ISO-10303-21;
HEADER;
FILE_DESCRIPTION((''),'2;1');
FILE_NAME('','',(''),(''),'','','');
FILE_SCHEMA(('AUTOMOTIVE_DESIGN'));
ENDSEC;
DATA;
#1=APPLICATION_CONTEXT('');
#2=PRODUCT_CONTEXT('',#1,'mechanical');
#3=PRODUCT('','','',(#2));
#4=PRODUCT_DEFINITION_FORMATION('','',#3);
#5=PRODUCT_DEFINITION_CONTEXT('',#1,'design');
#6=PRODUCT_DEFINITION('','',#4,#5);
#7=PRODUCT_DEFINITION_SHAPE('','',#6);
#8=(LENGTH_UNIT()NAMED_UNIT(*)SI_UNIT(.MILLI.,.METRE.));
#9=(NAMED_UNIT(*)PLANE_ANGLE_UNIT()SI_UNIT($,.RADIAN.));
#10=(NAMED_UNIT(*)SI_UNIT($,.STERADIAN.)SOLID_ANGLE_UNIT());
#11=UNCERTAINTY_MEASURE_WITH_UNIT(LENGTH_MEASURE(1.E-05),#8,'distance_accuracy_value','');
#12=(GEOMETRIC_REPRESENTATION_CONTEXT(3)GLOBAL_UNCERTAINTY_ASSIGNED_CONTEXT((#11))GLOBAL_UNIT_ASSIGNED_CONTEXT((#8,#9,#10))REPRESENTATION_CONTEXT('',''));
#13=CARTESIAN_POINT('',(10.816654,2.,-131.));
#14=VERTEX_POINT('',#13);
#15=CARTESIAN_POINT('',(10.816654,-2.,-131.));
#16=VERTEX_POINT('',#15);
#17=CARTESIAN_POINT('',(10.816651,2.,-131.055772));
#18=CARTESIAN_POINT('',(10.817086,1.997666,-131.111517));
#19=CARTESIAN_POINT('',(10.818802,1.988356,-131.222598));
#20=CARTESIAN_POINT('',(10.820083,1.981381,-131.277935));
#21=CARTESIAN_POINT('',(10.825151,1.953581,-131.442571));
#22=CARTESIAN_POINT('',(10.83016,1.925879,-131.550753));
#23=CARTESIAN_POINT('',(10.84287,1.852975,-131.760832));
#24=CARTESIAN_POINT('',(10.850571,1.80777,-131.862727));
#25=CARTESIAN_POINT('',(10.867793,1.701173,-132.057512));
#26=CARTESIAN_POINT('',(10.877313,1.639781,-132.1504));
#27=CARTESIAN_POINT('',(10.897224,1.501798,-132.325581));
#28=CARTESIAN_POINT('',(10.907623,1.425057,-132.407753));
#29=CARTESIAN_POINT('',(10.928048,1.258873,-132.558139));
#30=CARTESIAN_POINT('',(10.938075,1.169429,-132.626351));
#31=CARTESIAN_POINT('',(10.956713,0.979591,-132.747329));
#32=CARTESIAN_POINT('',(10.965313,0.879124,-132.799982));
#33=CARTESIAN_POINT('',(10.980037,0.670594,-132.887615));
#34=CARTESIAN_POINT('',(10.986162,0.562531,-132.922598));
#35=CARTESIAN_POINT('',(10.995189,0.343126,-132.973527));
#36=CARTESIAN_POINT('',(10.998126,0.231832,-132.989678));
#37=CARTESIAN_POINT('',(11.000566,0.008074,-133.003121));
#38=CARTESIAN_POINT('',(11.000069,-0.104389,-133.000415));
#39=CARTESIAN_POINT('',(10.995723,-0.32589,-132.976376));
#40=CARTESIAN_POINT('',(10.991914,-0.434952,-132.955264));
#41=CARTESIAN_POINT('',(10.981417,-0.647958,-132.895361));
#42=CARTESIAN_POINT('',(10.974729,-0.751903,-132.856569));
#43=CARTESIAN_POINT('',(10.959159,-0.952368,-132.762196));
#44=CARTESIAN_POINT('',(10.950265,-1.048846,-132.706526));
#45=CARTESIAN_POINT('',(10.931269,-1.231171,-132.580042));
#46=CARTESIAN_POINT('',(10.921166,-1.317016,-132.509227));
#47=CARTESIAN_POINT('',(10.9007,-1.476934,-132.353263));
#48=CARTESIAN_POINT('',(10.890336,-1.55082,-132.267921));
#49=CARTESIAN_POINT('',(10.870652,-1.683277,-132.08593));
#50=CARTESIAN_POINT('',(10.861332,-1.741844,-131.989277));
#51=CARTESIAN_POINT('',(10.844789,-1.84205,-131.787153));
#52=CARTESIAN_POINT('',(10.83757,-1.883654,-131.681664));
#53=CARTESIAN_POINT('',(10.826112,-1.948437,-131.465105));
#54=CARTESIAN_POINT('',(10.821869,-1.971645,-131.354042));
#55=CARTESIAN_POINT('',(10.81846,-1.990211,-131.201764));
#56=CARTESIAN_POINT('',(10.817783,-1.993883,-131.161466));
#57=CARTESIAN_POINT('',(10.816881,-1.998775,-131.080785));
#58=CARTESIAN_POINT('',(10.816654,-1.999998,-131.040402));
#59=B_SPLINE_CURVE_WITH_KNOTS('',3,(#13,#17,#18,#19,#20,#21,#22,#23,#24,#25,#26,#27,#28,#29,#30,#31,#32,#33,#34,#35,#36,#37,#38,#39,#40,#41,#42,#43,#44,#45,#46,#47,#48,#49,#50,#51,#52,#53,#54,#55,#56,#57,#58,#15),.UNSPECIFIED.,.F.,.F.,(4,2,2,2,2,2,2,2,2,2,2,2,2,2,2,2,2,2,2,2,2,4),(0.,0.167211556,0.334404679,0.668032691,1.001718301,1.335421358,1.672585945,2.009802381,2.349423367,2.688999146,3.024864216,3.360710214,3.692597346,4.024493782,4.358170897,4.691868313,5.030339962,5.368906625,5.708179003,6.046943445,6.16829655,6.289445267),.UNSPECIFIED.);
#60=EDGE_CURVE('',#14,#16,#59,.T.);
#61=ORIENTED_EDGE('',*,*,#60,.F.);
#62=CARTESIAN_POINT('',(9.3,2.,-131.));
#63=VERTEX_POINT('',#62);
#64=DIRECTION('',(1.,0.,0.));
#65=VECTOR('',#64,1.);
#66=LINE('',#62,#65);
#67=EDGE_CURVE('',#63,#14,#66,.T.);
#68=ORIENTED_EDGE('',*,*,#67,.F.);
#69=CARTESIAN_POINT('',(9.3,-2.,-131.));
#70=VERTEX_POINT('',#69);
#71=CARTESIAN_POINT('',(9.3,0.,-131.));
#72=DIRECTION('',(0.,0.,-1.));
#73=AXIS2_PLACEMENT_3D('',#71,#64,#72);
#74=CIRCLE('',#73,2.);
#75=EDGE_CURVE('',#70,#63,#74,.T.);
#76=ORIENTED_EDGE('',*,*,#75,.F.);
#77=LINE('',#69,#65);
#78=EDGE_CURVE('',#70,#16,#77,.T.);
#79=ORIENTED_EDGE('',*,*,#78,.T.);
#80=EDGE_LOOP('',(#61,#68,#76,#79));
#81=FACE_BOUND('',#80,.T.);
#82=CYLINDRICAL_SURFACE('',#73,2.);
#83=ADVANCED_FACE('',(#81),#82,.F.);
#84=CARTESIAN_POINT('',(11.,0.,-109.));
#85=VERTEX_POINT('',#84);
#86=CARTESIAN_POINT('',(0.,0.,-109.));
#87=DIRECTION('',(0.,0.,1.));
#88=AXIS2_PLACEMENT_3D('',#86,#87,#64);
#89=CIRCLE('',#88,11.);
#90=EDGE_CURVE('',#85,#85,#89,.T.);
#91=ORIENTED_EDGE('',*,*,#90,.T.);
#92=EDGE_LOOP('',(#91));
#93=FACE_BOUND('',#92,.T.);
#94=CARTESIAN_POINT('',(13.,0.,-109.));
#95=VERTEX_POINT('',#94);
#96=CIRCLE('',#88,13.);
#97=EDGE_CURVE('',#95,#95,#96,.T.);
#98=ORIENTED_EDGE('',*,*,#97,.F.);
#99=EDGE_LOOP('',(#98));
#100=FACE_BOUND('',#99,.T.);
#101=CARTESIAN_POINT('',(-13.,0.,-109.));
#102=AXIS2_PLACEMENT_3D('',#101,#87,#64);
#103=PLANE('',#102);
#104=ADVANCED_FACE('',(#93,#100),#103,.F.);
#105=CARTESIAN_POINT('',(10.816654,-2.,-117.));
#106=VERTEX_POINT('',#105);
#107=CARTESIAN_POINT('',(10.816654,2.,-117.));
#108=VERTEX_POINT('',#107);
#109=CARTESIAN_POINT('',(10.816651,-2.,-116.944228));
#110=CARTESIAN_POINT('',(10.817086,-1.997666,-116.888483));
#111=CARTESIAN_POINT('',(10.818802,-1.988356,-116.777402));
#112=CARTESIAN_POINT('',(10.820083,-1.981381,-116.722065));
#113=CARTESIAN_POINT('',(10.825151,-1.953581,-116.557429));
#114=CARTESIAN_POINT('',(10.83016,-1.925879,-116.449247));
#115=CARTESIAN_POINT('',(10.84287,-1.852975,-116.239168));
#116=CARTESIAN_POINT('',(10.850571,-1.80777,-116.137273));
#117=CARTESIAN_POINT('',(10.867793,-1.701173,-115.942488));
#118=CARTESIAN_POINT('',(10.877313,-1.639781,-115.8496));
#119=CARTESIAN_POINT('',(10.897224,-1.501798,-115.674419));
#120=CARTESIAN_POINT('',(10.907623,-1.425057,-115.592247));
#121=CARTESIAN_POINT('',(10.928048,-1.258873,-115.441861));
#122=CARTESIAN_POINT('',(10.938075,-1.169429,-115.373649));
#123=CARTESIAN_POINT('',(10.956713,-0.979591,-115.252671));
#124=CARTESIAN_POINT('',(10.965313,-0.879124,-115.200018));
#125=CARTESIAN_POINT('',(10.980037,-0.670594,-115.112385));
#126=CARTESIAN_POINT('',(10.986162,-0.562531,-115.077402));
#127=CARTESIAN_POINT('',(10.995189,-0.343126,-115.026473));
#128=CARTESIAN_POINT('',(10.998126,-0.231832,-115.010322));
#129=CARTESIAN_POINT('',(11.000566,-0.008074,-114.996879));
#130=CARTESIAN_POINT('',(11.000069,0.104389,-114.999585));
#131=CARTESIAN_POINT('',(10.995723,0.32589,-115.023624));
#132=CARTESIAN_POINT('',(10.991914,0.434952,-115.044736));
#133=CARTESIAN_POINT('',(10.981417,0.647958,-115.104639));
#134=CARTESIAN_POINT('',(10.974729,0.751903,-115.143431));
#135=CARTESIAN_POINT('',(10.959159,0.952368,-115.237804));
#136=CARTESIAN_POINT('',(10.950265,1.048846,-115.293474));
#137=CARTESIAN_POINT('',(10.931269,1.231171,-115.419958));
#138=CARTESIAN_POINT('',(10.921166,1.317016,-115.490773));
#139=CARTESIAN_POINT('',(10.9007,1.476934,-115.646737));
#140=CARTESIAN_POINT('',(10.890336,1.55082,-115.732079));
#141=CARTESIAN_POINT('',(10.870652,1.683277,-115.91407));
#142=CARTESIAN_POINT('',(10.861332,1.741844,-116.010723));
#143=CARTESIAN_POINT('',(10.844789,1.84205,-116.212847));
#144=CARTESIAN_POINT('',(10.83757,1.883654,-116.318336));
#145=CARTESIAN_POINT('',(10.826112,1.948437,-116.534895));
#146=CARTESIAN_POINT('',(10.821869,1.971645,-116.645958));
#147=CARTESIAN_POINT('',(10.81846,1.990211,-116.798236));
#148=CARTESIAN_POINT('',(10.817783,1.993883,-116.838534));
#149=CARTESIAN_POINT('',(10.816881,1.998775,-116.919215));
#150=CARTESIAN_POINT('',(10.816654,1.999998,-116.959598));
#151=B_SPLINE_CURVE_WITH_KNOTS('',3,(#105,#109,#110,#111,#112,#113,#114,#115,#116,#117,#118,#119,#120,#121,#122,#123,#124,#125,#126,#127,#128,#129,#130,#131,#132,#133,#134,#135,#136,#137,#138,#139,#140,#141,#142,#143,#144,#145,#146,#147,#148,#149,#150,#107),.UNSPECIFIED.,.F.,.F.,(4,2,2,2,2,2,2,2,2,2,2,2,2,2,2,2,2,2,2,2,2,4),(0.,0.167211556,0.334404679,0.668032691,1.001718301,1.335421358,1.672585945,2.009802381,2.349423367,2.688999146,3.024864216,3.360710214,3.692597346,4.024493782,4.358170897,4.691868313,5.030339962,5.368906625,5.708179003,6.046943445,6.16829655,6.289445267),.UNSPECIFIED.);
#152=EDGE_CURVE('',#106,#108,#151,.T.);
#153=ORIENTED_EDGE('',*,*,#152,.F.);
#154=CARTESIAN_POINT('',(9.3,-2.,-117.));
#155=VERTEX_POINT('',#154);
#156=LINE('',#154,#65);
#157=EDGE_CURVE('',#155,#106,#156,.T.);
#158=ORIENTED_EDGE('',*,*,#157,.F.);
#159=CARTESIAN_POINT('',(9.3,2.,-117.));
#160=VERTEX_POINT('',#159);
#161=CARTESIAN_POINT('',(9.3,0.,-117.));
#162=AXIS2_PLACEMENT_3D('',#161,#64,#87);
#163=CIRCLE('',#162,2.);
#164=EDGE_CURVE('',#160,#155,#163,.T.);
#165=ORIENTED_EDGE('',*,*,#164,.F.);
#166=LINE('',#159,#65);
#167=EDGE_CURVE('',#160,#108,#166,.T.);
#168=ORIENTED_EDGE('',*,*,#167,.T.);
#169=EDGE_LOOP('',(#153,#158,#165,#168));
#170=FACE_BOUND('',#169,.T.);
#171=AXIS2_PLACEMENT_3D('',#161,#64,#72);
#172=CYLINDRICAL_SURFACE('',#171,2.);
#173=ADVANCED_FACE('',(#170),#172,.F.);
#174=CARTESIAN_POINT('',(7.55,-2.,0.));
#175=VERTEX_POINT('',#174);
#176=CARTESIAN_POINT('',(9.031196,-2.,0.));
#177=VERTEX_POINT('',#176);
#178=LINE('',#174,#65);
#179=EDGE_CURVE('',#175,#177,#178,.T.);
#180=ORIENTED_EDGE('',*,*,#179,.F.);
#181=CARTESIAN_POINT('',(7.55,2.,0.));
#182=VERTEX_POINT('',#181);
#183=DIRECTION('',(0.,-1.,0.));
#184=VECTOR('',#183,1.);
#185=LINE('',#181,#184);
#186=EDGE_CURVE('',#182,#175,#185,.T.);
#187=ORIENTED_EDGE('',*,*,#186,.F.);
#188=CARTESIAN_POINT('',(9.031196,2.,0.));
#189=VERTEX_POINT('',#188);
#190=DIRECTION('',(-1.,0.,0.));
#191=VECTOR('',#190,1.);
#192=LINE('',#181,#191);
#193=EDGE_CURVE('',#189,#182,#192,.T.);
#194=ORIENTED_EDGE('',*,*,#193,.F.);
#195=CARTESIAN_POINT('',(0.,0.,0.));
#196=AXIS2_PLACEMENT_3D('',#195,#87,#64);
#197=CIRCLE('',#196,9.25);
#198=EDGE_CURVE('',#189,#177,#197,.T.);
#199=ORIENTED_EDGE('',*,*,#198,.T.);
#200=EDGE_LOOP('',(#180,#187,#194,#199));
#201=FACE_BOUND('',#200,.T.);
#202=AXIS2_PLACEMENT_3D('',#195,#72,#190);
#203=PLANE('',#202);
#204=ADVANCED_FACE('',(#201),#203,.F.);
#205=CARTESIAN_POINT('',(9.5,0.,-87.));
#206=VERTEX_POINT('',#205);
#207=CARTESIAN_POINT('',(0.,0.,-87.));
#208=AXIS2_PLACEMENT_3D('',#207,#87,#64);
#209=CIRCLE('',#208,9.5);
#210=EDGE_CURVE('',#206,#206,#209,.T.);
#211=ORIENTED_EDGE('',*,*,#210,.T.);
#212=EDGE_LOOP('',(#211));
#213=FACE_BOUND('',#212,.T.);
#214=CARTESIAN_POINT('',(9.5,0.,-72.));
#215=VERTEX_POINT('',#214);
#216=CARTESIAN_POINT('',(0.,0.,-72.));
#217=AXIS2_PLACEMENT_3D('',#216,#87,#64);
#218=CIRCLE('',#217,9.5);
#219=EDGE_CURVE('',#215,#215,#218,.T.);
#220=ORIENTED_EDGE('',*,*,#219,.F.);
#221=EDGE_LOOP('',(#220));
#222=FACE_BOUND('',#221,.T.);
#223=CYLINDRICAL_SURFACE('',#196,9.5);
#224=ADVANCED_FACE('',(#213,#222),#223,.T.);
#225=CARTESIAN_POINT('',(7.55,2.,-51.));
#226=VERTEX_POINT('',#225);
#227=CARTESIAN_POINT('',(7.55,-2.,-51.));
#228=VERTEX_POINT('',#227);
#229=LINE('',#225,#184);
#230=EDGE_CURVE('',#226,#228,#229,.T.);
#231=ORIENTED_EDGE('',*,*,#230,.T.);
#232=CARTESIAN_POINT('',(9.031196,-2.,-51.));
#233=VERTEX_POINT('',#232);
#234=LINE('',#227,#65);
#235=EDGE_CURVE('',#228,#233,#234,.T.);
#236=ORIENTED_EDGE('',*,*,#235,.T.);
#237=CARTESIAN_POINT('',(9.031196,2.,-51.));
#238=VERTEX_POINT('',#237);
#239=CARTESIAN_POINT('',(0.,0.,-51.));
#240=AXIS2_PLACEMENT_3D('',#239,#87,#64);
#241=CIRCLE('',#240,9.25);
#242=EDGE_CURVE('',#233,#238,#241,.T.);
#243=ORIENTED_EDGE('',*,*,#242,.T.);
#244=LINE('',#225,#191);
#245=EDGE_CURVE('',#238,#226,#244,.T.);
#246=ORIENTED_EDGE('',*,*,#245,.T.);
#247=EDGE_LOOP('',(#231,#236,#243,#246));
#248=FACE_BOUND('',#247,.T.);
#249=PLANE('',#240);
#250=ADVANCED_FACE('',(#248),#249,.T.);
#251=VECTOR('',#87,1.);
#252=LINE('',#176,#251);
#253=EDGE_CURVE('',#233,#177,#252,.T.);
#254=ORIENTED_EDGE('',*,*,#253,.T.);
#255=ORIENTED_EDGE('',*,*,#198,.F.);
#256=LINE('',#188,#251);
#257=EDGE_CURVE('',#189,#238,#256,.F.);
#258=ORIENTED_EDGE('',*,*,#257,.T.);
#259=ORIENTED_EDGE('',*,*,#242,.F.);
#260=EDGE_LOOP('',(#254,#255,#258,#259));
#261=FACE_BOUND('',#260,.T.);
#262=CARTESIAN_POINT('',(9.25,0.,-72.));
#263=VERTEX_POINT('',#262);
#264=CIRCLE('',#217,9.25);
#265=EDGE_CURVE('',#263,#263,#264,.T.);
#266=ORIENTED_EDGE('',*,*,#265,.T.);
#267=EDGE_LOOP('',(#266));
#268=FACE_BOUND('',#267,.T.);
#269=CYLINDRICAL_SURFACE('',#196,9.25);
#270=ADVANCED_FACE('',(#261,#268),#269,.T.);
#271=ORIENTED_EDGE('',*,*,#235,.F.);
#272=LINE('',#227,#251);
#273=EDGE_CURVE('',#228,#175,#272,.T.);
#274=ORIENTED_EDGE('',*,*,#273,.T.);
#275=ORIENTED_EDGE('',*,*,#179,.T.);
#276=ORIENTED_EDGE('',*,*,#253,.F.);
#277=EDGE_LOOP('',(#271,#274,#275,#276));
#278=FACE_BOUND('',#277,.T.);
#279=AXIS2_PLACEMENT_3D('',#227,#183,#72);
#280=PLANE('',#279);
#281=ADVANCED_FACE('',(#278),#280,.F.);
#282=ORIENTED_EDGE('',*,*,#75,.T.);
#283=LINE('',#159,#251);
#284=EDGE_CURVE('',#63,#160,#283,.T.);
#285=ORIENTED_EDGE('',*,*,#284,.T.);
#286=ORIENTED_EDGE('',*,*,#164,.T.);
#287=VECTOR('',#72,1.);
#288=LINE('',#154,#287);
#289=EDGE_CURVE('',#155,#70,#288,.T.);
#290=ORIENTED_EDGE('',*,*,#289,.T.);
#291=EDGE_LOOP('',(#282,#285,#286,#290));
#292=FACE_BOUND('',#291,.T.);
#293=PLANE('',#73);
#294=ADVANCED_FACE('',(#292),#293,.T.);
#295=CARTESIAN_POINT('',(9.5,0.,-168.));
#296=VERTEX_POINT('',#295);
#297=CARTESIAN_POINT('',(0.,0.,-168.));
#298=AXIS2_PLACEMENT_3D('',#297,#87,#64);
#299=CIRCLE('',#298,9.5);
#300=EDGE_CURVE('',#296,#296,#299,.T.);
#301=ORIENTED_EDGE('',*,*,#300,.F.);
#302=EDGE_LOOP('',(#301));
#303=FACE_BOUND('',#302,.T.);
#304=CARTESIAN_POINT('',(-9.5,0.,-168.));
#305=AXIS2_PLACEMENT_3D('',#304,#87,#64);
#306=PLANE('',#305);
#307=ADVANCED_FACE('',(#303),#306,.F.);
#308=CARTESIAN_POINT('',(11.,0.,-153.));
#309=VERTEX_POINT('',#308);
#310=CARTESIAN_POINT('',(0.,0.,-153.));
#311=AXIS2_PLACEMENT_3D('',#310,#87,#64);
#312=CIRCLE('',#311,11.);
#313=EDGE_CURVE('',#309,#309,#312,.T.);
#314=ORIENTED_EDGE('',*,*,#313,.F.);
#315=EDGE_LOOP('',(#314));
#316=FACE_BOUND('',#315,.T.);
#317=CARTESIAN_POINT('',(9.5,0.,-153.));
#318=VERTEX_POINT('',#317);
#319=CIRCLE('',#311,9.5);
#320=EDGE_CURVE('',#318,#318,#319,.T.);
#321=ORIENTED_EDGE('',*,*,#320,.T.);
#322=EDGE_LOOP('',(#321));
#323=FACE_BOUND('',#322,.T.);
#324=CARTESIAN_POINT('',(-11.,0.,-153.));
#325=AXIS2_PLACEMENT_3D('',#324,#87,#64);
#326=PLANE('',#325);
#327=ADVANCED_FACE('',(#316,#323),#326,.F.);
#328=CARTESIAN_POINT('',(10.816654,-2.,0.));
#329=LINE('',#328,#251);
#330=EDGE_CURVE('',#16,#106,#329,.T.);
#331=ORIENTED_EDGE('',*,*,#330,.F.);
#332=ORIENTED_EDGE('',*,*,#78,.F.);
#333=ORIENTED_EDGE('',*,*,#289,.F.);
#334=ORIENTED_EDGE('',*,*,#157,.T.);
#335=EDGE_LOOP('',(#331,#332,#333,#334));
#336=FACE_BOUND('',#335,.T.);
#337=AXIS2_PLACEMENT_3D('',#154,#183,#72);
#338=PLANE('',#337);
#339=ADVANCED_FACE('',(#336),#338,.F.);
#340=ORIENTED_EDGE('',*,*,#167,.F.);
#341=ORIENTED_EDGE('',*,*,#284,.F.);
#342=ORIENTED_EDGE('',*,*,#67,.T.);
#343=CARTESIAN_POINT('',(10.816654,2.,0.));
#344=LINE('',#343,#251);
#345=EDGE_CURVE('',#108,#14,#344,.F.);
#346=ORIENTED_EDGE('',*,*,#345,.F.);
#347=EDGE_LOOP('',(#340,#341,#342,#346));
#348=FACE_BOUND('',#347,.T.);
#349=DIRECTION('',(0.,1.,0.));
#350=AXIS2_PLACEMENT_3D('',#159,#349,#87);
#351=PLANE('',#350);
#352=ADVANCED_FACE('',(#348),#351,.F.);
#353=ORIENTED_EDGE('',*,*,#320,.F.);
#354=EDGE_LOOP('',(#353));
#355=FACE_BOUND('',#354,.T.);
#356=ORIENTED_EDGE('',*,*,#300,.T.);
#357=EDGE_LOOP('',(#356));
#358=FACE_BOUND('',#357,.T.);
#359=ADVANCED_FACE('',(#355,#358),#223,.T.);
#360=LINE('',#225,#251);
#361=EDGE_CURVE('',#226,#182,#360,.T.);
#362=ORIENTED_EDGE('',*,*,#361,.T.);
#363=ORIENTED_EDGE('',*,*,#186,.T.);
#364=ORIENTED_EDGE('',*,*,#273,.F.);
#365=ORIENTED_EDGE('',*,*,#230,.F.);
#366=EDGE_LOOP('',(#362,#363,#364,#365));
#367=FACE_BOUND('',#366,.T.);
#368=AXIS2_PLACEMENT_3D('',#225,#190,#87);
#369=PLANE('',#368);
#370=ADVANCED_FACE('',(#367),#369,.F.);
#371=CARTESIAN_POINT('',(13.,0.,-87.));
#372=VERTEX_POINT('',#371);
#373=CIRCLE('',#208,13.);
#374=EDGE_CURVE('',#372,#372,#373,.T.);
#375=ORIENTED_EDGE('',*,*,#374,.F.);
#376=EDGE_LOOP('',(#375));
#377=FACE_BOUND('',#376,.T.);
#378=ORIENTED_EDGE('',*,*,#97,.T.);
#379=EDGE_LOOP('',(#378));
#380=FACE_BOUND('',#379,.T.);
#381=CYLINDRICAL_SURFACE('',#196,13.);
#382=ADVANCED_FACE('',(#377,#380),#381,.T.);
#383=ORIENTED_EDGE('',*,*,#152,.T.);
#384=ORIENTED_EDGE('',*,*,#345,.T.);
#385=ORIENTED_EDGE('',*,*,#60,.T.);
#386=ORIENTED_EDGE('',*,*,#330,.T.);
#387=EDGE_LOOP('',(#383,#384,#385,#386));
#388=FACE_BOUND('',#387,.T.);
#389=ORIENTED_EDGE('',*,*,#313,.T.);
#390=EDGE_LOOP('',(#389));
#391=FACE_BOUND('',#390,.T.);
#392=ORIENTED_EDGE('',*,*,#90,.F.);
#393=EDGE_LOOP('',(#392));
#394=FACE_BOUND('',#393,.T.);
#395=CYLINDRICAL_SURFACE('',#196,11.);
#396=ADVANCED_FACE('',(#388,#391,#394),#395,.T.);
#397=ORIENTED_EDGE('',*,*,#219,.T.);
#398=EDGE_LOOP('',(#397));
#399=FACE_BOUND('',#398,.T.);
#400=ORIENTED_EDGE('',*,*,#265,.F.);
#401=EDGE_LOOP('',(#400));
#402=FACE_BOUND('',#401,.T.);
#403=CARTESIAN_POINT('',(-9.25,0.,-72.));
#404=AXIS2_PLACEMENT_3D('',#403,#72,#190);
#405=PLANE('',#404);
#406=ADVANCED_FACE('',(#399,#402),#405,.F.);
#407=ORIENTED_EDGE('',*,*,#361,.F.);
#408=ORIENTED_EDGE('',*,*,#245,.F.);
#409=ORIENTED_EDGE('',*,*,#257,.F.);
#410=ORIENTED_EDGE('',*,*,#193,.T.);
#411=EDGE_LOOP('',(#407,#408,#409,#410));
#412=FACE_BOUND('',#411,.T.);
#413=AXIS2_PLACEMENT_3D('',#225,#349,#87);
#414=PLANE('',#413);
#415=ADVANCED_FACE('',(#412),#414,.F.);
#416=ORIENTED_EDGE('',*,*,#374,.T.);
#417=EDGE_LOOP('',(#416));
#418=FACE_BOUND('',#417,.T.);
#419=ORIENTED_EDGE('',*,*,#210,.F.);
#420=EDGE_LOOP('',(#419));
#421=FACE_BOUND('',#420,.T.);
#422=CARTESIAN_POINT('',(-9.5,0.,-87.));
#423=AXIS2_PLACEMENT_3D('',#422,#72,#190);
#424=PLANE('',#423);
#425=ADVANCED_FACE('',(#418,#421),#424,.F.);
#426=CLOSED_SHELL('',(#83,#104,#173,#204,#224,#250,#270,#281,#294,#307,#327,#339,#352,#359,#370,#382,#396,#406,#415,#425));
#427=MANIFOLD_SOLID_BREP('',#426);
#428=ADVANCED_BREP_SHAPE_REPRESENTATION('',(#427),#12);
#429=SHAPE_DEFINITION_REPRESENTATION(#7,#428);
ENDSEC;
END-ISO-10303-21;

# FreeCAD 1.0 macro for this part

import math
import FreeCAD as App
import Part
import Sketcher
from FreeCAD import Vector
Q = App.Units.Quantity


def add_polygon(sketch, points):
    """Adds a closed chain of lines whose ends are joined by coincident constraints."""
    first, n = sketch.GeometryCount, len(points)
    for a, b in zip(points, points[1:] + points[:1]):
        sketch.addGeometry(Part.LineSegment(App.Vector(*a, 0), App.Vector(*b, 0)), False)
    for i in range(n):
        sketch.addConstraint(Sketcher.Constraint("Coincident", first + i, 2, first + (i + 1) % n, 1))

doc = App.newDocument("Part")
body = doc.addObject("PartDesign::Body", "Body")

sketch1 = doc.addObject("Sketcher::SketchObject", "Sketch")
body.addObject(sketch1)
sketch1.AttachmentSupport = (doc.XZ_Plane, [""])
sketch1.MapMode = "FlatFace"
add_polygon(sketch1, [(-9.25, 0), (0, 0), (0, -168), (-9.5, -168), (-9.5, -153), (-11, -153), (-11, -109), (-13, -109), (-13, -87), (-9.5, -87), (-9.5, -72), (-9.25, -72)])
sketch1.addConstraint([
    Sketcher.Constraint("Horizontal", 0),
    Sketcher.Constraint("Vertical", 1),
    Sketcher.Constraint("Horizontal", 2),
    Sketcher.Constraint("Vertical", 3),
    Sketcher.Constraint("Horizontal", 4),
    Sketcher.Constraint("Vertical", 5),
    Sketcher.Constraint("Horizontal", 6),
    Sketcher.Constraint("Vertical", 7),
    Sketcher.Constraint("Horizontal", 8),
    Sketcher.Constraint("Vertical", 9),
    Sketcher.Constraint("Horizontal", 10),
    Sketcher.Constraint("Vertical", 11),
    Sketcher.Constraint("Coincident", 0, 2, -1, 1),
    Sketcher.Constraint("Vertical", 3, 2, 8, 2),
    Sketcher.Constraint("Equal", 3, 9),
    Sketcher.Constraint("DistanceX", 6, 2, 6, 1, Q("2 mm")),
    Sketcher.Constraint("DistanceY", 1, 2, 1, 1, Q("168 mm")),
    Sketcher.Constraint("DistanceY", 3, 1, 3, 2, Q("15 mm")),
    Sketcher.Constraint("DistanceY", 5, 1, 5, 2, Q("44 mm")),
    Sketcher.Constraint("DistanceY", 7, 1, 7, 2, Q("22 mm")),
    Sketcher.Constraint("DistanceX", 2, 2, 2, 1, Q("9.5 mm")),
    Sketcher.Constraint("DistanceX", 4, 2, 4, 1, Q("1.5 mm")),
    Sketcher.Constraint("DistanceX", 0, 1, 0, 2, Q("9.25 mm")),
])
revolution = doc.addObject("PartDesign::Revolution", "Revolution")
body.addObject(revolution)
revolution.Profile = sketch1
revolution.ReferenceAxis = (sketch1, ["V_Axis"])
revolution.Angle = 360

sketch2 = doc.addObject("Sketcher::SketchObject", "Sketch001")
body.addObject(sketch2)
sketch2.AttachmentSupport = (doc.XY_Plane, [""])
sketch2.MapMode = "FlatFace"
add_polygon(sketch2, [(7.5, 2), (7.5, -2), (11.6, -2), (11.6, 2)])
sketch2.addConstraint([
    Sketcher.Constraint("Vertical", 0),
    Sketcher.Constraint("Horizontal", 1),
    Sketcher.Constraint("Vertical", 2),
    Sketcher.Constraint("Horizontal", 3),
    Sketcher.Constraint("DistanceY", 0, 2, 0, 1, Q("4 mm")),
    Sketcher.Constraint("DistanceY", 0, 2, -1, 1, Q("2 mm")),
    Sketcher.Constraint("DistanceX", -1, 1, 0, 2, Q("7.55 mm")),
    Sketcher.Constraint("DistanceX", 1, 1, 1, 2, Q("4.079747 mm")),
])
pocket1 = doc.addObject("PartDesign::Pocket", "Pocket")
body.addObject(pocket1)
pocket1.Profile = sketch2
pocket1.Length = 51

sketch3 = doc.addObject("Sketcher::SketchObject", "Sketch002")
body.addObject(sketch3)
sketch3.AttachmentSupport = (doc.YZ_Plane, [""])
sketch3.MapMode = "FlatFace"
sketch3.AttachmentOffset = App.Placement(Vector(0, 0, 11), App.Rotation())
sketch3.addGeometry([
    Part.LineSegment(Vector(2, -131, 0), Vector(2, -117, 0)),
    Part.ArcOfCircle(Part.Circle(Vector(0, -117, 0), Vector(0, 0, 1), 2), math.radians(0), math.radians(180)),
    Part.LineSegment(Vector(-2, -117, 0), Vector(-2, -131, 0)),
    Part.ArcOfCircle(Part.Circle(Vector(0, -131, 0), Vector(0, 0, 1), 2), math.radians(180), math.radians(360)),
], False)
sketch3.addConstraint([
    Sketcher.Constraint("Tangent", 0, 2, 1, 1),
    Sketcher.Constraint("Tangent", 1, 2, 2, 1),
    Sketcher.Constraint("Tangent", 2, 2, 3, 1),
    Sketcher.Constraint("Tangent", 3, 2, 0, 1),
    Sketcher.Constraint("Vertical", 0),
    Sketcher.Constraint("Vertical", 2),
    Sketcher.Constraint("PointOnObject", 1, 3, -2),
    Sketcher.Constraint("Radius", 1, Q("2 mm")),
    Sketcher.Constraint("DistanceY", 0, 1, 0, 2, Q("14 mm")),
    Sketcher.Constraint("DistanceY", 1, 3, -1, 1, Q("117 mm")),
])
pocket2 = doc.addObject("PartDesign::Pocket", "Pocket001")
body.addObject(pocket2)
pocket2.Profile = sketch3
pocket2.Length = 1.7

doc.recompute()
